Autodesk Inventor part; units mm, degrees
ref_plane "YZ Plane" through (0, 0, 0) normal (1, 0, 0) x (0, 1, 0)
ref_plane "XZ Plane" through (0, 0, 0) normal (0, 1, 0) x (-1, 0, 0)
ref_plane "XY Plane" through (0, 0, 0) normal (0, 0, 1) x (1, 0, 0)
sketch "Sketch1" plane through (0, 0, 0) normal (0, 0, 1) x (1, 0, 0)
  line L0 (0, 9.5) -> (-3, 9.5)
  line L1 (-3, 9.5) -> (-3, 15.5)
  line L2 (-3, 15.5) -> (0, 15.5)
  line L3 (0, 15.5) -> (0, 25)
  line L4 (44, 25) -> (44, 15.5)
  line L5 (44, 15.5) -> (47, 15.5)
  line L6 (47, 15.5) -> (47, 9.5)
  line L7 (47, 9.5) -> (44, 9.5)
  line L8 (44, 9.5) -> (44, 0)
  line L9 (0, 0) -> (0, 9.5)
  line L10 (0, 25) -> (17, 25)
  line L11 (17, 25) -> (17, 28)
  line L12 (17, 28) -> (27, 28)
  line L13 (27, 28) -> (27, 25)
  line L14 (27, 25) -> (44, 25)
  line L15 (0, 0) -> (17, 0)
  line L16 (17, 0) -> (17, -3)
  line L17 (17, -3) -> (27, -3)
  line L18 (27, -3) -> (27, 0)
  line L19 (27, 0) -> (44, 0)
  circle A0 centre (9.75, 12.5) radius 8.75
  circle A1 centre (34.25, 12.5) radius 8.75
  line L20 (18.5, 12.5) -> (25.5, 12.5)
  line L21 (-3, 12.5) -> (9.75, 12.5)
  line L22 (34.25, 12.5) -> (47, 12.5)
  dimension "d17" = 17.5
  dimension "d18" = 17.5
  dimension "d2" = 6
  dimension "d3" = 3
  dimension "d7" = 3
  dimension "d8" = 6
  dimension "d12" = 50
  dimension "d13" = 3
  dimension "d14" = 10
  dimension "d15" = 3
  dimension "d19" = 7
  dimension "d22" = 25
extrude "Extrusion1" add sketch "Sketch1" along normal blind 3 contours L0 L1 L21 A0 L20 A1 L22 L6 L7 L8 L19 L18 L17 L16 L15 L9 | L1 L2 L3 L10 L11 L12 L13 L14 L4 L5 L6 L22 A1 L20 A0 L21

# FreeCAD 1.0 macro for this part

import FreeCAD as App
import Part
import Sketcher
Q = App.Units.Quantity

doc = App.newDocument("Part")
body = doc.addObject("PartDesign::Body", "Body")

# Sketch on XY plane
sketch1 = body.newObject("Sketcher::SketchObject", "Sketch")
sketch1.AttachmentSupport = (doc.getObject("XY_Plane"), [""])
sketch1.MapMode = "FlatFace"
sketch1.addGeometry([
    Part.LineSegment(App.Vector(-3, 9.5, 0), App.Vector(0, 9.5, 0)),  # 0
    Part.LineSegment(App.Vector(0, 9.5, 0), App.Vector(0, 0, 0)),  # 1
    Part.LineSegment(App.Vector(0, 0, 0), App.Vector(17, 0, 0)),  # 2
    Part.LineSegment(App.Vector(17, 0, 0), App.Vector(17, -3, 0)),  # 3
    Part.LineSegment(App.Vector(17, -3, 0), App.Vector(27, -3, 0)),  # 4
    Part.LineSegment(App.Vector(27, -3, 0), App.Vector(27, 0, 0)),  # 5
    Part.LineSegment(App.Vector(27, 0, 0), App.Vector(44, 0, 0)),  # 6
    Part.LineSegment(App.Vector(44, 0, 0), App.Vector(44, 9.5, 0)),  # 7
    Part.LineSegment(App.Vector(44, 9.5, 0), App.Vector(47, 9.5, 0)),  # 8
    Part.LineSegment(App.Vector(47, 9.5, 0), App.Vector(47, 15.5, 0)),  # 9
    Part.LineSegment(App.Vector(47, 15.5, 0), App.Vector(44, 15.5, 0)),  # 10
    Part.LineSegment(App.Vector(44, 15.5, 0), App.Vector(44, 25, 0)),  # 11
    Part.LineSegment(App.Vector(44, 25, 0), App.Vector(27, 25, 0)),  # 12
    Part.LineSegment(App.Vector(27, 25, 0), App.Vector(27, 28, 0)),  # 13
    Part.LineSegment(App.Vector(27, 28, 0), App.Vector(17, 28, 0)),  # 14
    Part.LineSegment(App.Vector(17, 28, 0), App.Vector(17, 25, 0)),  # 15
    Part.LineSegment(App.Vector(17, 25, 0), App.Vector(0, 25, 0)),  # 16
    Part.LineSegment(App.Vector(0, 25, 0), App.Vector(0, 15.5, 0)),  # 17
    Part.LineSegment(App.Vector(0, 15.5, 0), App.Vector(-3, 15.5, 0)),  # 18
    Part.LineSegment(App.Vector(-3, 15.5, 0), App.Vector(-3, 9.5, 0)),  # 19
    Part.Circle(App.Vector(9.8, 12.5, 0), App.Vector(0, 0, 1), 8.8),  # 20
    Part.Circle(App.Vector(34.2, 12.5, 0), App.Vector(0, 0, 1), 8.8),  # 21
], False)
sketch1.addConstraint([
    Sketcher.Constraint("Coincident", 0, 2, 1, 1),
    Sketcher.Constraint("Coincident", 1, 2, 2, 1),
    Sketcher.Constraint("Coincident", 2, 2, 3, 1),
    Sketcher.Constraint("Coincident", 3, 2, 4, 1),
    Sketcher.Constraint("Coincident", 4, 2, 5, 1),
    Sketcher.Constraint("Coincident", 5, 2, 6, 1),
    Sketcher.Constraint("Coincident", 6, 2, 7, 1),
    Sketcher.Constraint("Coincident", 7, 2, 8, 1),
    Sketcher.Constraint("Coincident", 8, 2, 9, 1),
    Sketcher.Constraint("Coincident", 9, 2, 10, 1),
    Sketcher.Constraint("Coincident", 10, 2, 11, 1),
    Sketcher.Constraint("Coincident", 11, 2, 12, 1),
    Sketcher.Constraint("Coincident", 12, 2, 13, 1),
    Sketcher.Constraint("Coincident", 13, 2, 14, 1),
    Sketcher.Constraint("Coincident", 14, 2, 15, 1),
    Sketcher.Constraint("Coincident", 15, 2, 16, 1),
    Sketcher.Constraint("Coincident", 16, 2, 17, 1),
    Sketcher.Constraint("Coincident", 17, 2, 18, 1),
    Sketcher.Constraint("Coincident", 18, 2, 19, 1),
    Sketcher.Constraint("Coincident", 19, 2, 0, 1),
    Sketcher.Constraint("Horizontal", 0),
    Sketcher.Constraint("Vertical", 1),
    Sketcher.Constraint("Horizontal", 2),
    Sketcher.Constraint("Vertical", 3),
    Sketcher.Constraint("Horizontal", 4),
    Sketcher.Constraint("Vertical", 5),
    Sketcher.Constraint("Horizontal", 6),
    Sketcher.Constraint("Vertical", 7),
    Sketcher.Constraint("Horizontal", 8),
    Sketcher.Constraint("Vertical", 9),
    Sketcher.Constraint("Horizontal", 10),
    Sketcher.Constraint("Vertical", 11),
    Sketcher.Constraint("Horizontal", 12),
    Sketcher.Constraint("Vertical", 13),
    Sketcher.Constraint("Horizontal", 14),
    Sketcher.Constraint("Vertical", 15),
    Sketcher.Constraint("Horizontal", 16),
    Sketcher.Constraint("Vertical", 17),
    Sketcher.Constraint("Horizontal", 18),
    Sketcher.Constraint("Vertical", 19),
    Sketcher.Constraint("Coincident", 1, 2, -1, 1),
    Sketcher.Constraint("Equal", 20, 21),
    Sketcher.Constraint("PointOnObject", 5, 2, -1),
    Sketcher.Constraint("PointOnObject", 16, 2, -2),
    Sketcher.Constraint("Horizontal", 20, 3, 21, 3),
    Sketcher.Constraint("Horizontal", 0, 2, 7, 2),
    Sketcher.Constraint("Horizontal", 12, 2, 15, 2),
    Sketcher.Constraint("Horizontal", 10, 2, 17, 2),
    Sketcher.Constraint("Vertical", 7, 2, 10, 2),
    Sketcher.Constraint("Vertical", 5, 2, 12, 2),
    Sketcher.Constraint("Vertical", 3, 2, 14, 2),
    Sketcher.Constraint("Equal", 2, 6),
    Sketcher.Constraint("Equal", 0, 8),
    Sketcher.Constraint("Equal", 18, 3),
    Sketcher.Constraint("Equal", 7, 11),
    Sketcher.Constraint("Equal", 5, 13),
    Sketcher.Constraint("Diameter", 20, Q("17.5 mm")),
    Sketcher.Constraint("DistanceX", 0, 1, 0, 2, Q("3 mm")),
    Sketcher.Constraint("DistanceX", 4, 1, 4, 2, Q("10 mm")),
    Sketcher.Constraint("DistanceY", 9, 1, 9, 2, Q("6 mm")),
    Sketcher.Constraint("DistanceY", -1, 1, 11, 2, Q("25 mm")),
    Sketcher.Constraint("DistanceY", 0, 2, 20, 3, Q("3 mm")),
    Sketcher.Constraint("DistanceX", 2, 1, 2, 2, Q("17 mm")),
    Sketcher.Constraint("DistanceX", 20, 3, 21, 3, Q("24.5 mm")),
    Sketcher.Constraint("DistanceX", -1, 1, 20, 3, Q("9.75 mm")),
])
pad1 = body.newObject("PartDesign::Pad", "Pad")
pad1.Profile = sketch1
pad1.Length = 3

doc.recompute()
